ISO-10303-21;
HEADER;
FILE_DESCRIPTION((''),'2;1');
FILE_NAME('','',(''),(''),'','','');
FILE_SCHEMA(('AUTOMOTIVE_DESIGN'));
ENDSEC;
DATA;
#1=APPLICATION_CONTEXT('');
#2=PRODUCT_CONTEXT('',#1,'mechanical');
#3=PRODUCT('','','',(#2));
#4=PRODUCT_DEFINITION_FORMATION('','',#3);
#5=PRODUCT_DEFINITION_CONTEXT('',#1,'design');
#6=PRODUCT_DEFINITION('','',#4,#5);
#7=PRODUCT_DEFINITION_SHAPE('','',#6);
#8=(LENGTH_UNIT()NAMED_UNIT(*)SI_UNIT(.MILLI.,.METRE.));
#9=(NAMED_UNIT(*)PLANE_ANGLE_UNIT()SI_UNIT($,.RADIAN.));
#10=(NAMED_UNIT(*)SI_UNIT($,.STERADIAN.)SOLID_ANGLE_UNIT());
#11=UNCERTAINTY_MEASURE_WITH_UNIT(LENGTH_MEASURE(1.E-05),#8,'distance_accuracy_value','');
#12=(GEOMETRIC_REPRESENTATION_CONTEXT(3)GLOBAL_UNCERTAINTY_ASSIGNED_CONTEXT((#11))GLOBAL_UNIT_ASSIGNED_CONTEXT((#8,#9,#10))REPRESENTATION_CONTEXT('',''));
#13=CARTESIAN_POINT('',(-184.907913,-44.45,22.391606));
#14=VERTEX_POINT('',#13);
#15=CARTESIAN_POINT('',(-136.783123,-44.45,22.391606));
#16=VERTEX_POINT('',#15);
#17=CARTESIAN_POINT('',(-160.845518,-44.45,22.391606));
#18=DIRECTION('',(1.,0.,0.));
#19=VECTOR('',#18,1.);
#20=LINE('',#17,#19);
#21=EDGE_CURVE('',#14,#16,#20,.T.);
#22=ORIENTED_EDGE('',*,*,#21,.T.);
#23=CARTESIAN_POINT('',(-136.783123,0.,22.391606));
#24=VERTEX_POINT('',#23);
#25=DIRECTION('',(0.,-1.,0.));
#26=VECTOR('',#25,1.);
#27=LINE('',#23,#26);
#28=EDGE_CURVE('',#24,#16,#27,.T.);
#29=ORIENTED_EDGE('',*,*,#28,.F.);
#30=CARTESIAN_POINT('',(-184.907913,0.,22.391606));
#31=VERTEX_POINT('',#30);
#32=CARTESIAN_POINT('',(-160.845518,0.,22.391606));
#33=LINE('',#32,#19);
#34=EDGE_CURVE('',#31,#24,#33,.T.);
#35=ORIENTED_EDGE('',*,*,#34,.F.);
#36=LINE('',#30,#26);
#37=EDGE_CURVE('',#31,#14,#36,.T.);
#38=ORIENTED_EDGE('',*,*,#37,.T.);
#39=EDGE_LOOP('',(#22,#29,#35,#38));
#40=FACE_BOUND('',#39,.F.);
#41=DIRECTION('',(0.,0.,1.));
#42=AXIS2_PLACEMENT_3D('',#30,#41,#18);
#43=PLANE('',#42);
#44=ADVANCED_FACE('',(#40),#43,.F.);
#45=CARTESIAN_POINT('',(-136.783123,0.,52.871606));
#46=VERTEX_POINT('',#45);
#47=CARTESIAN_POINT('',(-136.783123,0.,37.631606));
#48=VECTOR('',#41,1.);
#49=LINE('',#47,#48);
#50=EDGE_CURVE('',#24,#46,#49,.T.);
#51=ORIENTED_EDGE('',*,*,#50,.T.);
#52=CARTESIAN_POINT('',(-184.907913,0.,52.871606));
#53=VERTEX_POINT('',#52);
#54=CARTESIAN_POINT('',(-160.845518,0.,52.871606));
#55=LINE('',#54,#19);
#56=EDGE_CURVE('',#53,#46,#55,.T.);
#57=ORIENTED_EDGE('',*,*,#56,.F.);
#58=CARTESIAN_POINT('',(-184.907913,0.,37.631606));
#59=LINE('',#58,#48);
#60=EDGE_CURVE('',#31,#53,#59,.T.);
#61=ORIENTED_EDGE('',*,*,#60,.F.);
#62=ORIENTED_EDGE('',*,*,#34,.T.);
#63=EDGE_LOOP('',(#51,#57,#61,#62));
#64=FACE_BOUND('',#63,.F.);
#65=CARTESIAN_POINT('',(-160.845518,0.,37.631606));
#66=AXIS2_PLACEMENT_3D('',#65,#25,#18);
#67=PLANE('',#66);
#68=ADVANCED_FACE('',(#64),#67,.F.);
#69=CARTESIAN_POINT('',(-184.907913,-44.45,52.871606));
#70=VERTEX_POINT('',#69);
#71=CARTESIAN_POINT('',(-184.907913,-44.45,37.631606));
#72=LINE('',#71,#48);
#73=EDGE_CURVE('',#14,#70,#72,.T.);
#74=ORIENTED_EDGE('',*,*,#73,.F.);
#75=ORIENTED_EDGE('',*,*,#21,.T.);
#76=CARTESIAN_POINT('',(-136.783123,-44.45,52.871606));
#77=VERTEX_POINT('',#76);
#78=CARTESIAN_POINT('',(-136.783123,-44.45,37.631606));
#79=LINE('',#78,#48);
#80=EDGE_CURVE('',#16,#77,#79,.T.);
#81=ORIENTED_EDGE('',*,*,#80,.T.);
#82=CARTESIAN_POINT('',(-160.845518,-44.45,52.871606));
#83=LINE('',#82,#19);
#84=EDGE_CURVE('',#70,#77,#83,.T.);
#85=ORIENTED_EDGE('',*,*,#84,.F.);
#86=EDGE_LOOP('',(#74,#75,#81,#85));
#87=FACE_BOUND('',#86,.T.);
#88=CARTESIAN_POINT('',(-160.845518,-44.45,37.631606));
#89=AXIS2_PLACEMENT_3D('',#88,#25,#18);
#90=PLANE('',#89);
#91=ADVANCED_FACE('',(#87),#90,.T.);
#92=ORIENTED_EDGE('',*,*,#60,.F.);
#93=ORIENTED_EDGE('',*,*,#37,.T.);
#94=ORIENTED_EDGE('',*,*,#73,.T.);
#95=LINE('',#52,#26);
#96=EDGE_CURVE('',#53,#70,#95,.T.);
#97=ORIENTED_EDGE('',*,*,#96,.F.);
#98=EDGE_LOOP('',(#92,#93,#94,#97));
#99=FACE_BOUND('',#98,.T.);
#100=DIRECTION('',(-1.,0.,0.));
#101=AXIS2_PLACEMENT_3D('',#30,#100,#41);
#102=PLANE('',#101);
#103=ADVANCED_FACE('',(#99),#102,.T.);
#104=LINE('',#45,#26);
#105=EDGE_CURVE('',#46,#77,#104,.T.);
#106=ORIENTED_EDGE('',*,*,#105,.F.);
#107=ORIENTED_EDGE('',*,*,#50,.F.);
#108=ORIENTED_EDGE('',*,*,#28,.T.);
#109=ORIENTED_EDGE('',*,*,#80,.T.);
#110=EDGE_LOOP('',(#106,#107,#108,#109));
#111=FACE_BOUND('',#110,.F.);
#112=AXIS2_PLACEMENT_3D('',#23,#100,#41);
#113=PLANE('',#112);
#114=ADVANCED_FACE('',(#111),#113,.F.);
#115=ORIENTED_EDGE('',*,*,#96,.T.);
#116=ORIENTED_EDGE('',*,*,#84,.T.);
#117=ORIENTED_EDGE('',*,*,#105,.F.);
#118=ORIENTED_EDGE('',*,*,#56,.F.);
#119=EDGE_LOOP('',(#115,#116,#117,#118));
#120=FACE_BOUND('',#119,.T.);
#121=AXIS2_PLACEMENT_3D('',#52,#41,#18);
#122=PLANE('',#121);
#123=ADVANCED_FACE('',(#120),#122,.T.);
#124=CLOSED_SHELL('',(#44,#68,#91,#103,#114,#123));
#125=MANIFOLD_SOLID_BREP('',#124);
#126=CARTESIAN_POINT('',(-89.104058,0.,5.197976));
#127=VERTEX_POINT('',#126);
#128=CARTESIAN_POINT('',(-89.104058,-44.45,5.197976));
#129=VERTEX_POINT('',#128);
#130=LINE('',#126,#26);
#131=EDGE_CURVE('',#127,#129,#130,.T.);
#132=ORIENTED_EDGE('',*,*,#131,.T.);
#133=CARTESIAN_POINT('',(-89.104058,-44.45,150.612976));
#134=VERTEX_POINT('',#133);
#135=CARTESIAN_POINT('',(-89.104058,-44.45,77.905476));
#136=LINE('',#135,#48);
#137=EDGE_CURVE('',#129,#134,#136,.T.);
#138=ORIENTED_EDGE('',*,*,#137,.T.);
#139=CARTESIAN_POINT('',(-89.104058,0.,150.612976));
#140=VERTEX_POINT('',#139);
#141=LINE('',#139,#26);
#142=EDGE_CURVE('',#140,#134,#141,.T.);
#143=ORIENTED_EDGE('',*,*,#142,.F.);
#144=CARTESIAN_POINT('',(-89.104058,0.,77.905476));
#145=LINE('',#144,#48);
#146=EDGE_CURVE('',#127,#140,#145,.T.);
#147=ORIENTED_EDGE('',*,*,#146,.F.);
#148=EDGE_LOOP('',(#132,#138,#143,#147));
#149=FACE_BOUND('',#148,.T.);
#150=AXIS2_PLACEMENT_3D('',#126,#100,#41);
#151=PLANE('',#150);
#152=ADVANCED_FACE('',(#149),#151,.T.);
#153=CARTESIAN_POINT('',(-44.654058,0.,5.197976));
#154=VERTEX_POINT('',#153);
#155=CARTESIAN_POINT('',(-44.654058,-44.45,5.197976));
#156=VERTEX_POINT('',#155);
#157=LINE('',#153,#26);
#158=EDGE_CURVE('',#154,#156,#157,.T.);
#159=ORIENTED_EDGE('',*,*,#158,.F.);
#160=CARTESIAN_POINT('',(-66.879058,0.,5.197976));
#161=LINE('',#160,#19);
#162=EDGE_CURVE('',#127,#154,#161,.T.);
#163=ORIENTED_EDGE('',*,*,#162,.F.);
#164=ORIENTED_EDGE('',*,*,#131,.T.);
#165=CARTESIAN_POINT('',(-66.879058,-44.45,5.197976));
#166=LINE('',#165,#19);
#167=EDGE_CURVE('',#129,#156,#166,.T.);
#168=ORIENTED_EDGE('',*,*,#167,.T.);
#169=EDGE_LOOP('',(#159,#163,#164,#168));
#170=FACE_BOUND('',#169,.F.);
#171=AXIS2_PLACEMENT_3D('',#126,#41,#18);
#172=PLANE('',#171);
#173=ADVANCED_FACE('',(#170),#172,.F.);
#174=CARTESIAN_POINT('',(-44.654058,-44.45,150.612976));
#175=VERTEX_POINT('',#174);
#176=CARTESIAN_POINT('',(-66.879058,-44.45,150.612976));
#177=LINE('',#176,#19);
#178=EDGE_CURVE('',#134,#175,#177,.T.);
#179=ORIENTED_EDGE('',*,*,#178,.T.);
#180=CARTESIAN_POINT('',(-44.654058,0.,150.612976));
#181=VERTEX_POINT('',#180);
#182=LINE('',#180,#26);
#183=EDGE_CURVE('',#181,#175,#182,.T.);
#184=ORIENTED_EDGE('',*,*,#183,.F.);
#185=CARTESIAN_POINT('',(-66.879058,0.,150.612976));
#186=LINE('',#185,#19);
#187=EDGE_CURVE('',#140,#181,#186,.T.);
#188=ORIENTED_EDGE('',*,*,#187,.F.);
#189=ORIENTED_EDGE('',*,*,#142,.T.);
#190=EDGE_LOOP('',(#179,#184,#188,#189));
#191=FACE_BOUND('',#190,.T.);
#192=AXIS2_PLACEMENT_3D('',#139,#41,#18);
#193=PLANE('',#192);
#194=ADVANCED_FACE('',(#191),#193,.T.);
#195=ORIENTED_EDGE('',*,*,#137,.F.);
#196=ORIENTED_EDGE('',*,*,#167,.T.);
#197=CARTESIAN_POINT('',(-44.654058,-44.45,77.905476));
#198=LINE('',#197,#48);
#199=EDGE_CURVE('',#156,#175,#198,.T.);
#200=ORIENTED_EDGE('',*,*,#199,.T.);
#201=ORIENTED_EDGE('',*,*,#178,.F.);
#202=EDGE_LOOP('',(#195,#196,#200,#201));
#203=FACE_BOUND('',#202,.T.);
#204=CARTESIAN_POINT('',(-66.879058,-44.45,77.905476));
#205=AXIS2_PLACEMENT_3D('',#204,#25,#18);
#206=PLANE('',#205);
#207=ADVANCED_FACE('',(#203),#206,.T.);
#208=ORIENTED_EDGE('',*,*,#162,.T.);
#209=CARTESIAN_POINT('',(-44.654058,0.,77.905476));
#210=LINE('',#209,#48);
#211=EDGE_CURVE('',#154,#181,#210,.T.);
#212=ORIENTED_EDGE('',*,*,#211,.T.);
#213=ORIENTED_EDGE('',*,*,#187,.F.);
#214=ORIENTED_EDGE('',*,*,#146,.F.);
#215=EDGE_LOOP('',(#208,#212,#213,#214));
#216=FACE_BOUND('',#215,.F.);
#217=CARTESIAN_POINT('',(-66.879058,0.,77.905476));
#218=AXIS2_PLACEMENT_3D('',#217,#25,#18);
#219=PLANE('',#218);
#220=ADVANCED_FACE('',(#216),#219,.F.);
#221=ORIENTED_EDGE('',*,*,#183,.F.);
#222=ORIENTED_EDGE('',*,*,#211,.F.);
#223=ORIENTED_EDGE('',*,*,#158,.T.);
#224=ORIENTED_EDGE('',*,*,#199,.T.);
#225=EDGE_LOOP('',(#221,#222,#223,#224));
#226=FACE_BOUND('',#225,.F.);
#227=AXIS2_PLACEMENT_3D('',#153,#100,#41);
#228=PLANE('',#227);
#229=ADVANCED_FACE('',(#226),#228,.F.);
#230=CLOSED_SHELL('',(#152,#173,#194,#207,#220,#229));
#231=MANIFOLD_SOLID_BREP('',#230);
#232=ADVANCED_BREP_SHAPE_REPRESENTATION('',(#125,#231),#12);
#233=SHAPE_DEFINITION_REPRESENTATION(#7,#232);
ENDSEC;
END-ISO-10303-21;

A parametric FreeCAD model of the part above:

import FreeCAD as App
import Part
import Sketcher
from FreeCAD import Vector
Q = App.Units.Quantity


def add_polygon(sketch, points):
    """Adds a closed chain of lines whose ends are joined by coincident constraints."""
    first, n = sketch.GeometryCount, len(points)
    for a, b in zip(points, points[1:] + points[:1]):
        sketch.addGeometry(Part.LineSegment(App.Vector(*a, 0), App.Vector(*b, 0)), False)
    for i in range(n):
        sketch.addConstraint(Sketcher.Constraint("Coincident", first + i, 2, first + (i + 1) % n, 1))

doc = App.newDocument("Part")
body = doc.addObject("PartDesign::Body", "Body")
body.AllowCompound = True

# Sketch on XZ plane
sketch1 = doc.addObject("Sketcher::SketchObject", "Sketch")
body.addObject(sketch1)
sketch1.AttachmentSupport = (doc.XZ_Plane, [""])
sketch1.MapMode = "FlatFace"
add_polygon(sketch1, [(-89, 151), (-89, 5), (-45, 5), (-45, 151)])  # lines 0-3
add_polygon(sketch1, [(-185, 53), (-185, 22), (-137, 22), (-137, 53)])  # lines 4-7
sketch1.addConstraint([
    Sketcher.Constraint("Vertical", 0),
    Sketcher.Constraint("Horizontal", 1),
    Sketcher.Constraint("Vertical", 2),
    Sketcher.Constraint("Horizontal", 3),
    Sketcher.Constraint("Vertical", 4),
    Sketcher.Constraint("Horizontal", 5),
    Sketcher.Constraint("Vertical", 6),
    Sketcher.Constraint("Horizontal", 7),
    Sketcher.Constraint("DistanceY", 4, 2, 4, 1, Q("1.2 in")),
    Sketcher.Constraint("DistanceX", 1, 1, 1, 2, Q("1.75 in")),
    Sketcher.Constraint("DistanceY", 0, 2, 0, 1, Q("5.725 in")),
    Sketcher.Constraint("DistanceX", 5, 1, 5, 2, Q("48.12479 mm")),
    Sketcher.Constraint("DistanceY", 0, 2, 4, 2, Q("17.19363 mm")),
    Sketcher.Constraint("DistanceX", 0, 2, -1, 1, Q("89.104058 mm")),
    Sketcher.Constraint("DistanceY", -1, 1, 0, 2, Q("5.197976 mm")),
    Sketcher.Constraint("DistanceX", 4, 2, -1, 1, Q("184.907913 mm")),
])
pad1 = doc.addObject("PartDesign::Pad", "Pad")
body.addObject(pad1)
pad1.Profile = sketch1
pad1.Length = Q("1.75 in")

doc.recompute()
